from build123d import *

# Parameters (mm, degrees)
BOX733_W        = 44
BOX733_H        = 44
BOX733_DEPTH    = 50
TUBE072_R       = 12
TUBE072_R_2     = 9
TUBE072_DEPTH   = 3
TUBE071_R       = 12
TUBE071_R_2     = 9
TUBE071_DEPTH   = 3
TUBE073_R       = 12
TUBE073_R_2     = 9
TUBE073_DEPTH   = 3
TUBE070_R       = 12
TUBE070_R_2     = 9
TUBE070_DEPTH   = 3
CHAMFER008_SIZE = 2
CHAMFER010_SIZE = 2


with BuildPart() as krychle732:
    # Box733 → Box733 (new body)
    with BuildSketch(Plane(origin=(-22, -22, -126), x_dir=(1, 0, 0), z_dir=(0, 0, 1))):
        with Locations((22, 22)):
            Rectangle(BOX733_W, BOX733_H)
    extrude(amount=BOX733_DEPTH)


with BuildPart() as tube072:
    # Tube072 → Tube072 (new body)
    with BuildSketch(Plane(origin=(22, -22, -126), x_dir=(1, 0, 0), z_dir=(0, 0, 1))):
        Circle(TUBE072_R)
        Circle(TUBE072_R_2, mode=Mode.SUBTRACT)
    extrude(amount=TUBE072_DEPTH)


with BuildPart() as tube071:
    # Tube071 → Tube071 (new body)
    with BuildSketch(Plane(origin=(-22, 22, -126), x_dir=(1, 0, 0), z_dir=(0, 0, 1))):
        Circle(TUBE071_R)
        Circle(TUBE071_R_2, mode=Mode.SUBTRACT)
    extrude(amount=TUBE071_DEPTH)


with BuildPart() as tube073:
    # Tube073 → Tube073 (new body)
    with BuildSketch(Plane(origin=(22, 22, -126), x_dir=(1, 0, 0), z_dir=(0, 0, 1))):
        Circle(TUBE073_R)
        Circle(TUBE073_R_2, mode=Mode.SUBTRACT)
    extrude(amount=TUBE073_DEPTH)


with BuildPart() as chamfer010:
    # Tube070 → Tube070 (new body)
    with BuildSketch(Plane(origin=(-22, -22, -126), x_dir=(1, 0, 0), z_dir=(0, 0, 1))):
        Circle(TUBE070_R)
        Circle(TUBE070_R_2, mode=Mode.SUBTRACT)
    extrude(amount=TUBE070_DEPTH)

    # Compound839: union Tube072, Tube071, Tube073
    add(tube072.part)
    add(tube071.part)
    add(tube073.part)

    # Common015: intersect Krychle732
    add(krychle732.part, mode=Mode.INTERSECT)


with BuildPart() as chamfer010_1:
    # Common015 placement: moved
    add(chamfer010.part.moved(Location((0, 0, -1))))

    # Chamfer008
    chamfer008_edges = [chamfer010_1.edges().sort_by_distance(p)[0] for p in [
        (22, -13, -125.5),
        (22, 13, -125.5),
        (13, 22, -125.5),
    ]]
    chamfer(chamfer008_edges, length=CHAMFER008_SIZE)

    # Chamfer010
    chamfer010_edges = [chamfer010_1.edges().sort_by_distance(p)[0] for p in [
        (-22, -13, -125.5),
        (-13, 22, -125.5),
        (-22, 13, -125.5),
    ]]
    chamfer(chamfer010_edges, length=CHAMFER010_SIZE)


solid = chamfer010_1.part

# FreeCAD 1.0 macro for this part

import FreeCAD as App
import Part
import Sketcher


def edges_at(feature, points):
    """Names of the edges that pass closest to the given points."""
    edges = feature.Shape.Edges
    near = lambda p: min(range(len(edges)), key=lambda i: edges[i].distToShape(Part.Vertex(*p))[0])
    return sorted({f"Edge{near(p) + 1}" for p in points})

doc = App.newDocument("Part")
body = doc.addObject("PartDesign::Body", "Body")

# Sketch on XY plane
sketch1 = body.newObject("Sketcher::SketchObject", "Sketch")
sketch1.AttachmentSupport = (doc.getObject("XY_Plane"), [""])
sketch1.MapMode = "FlatFace"
sketch1.AttachmentOffset = App.Placement(App.Vector(0, 0, -126), App.Rotation())
sketch1.addGeometry([
    Part.LineSegment(App.Vector(-22, 22, 0), App.Vector(-22, -22, 0)),
    Part.LineSegment(App.Vector(-22, -22, 0), App.Vector(22, -22, 0)),
    Part.LineSegment(App.Vector(22, -22, 0), App.Vector(22, 22, 0)),
    Part.LineSegment(App.Vector(22, 22, 0), App.Vector(-22, 22, 0)),
], False)
sketch1.addConstraint([
    Sketcher.Constraint("Coincident", 0, 2, 1, 1),
    Sketcher.Constraint("Coincident", 1, 2, 2, 1),
    Sketcher.Constraint("Coincident", 2, 2, 3, 1),
    Sketcher.Constraint("Coincident", 3, 2, 0, 1),
    Sketcher.Constraint("Vertical", 0),
    Sketcher.Constraint("Horizontal", 1),
    Sketcher.Constraint("Vertical", 2),
    Sketcher.Constraint("Horizontal", 3),
    Sketcher.Constraint("Symmetric", 0, 2, 2, 2, -1, 1),
    Sketcher.Constraint("Equal", 3, 0),
    Sketcher.Constraint("DistanceX", 1, 1, 1, 2, 44.0),
])
pad1 = body.newObject("PartDesign::Pad", "Pad")
pad1.Profile = sketch1
pad1.Length = 50
body2 = doc.addObject("PartDesign::Body", "Body001")

# Sketch on XY plane
sketch2 = body2.newObject("Sketcher::SketchObject", "Sketch001")
sketch2.AttachmentSupport = (doc.getObject("XY_Plane001"), [""])
sketch2.MapMode = "FlatFace"
sketch2.AttachmentOffset = App.Placement(App.Vector(0, 0, -126), App.Rotation())
sketch2.addGeometry([
    Part.Circle(App.Vector(22, -22, 0), App.Vector(0, 0, 1), 12),
    Part.Circle(App.Vector(22, -22, 0), App.Vector(0, 0, 1), 9),
], False)
sketch2.addConstraint([
    Sketcher.Constraint("Coincident", 1, 3, 0, 3),
    Sketcher.Constraint("Diameter", 0, 24.0),
    Sketcher.Constraint("Diameter", 1, 18.0),
    Sketcher.Constraint("DistanceX", -1, 1, 0, 3, 22.0),
    Sketcher.Constraint("DistanceY", 0, 3, -1, 1, 22.0),
])
pad2 = body2.newObject("PartDesign::Pad", "Pad001")
pad2.Profile = sketch2
pad2.Length = 3
body3 = doc.addObject("PartDesign::Body", "Body002")

# Sketch on XY plane
sketch3 = body3.newObject("Sketcher::SketchObject", "Sketch002")
sketch3.AttachmentSupport = (doc.getObject("XY_Plane002"), [""])
sketch3.MapMode = "FlatFace"
sketch3.AttachmentOffset = App.Placement(App.Vector(0, 0, -126), App.Rotation())
sketch3.addGeometry([
    Part.Circle(App.Vector(-22, 22, 0), App.Vector(0, 0, 1), 12),
    Part.Circle(App.Vector(-22, 22, 0), App.Vector(0, 0, 1), 9),
], False)
sketch3.addConstraint([
    Sketcher.Constraint("Coincident", 1, 3, 0, 3),
    Sketcher.Constraint("Diameter", 0, 24.0),
    Sketcher.Constraint("Diameter", 1, 18.0),
    Sketcher.Constraint("DistanceX", 0, 3, -1, 1, 22.0),
    Sketcher.Constraint("DistanceY", -1, 1, 0, 3, 22.0),
])
pad3 = body3.newObject("PartDesign::Pad", "Pad002")
pad3.Profile = sketch3
pad3.Length = 3
body4 = doc.addObject("PartDesign::Body", "Body003")

# Sketch on XY plane
sketch4 = body4.newObject("Sketcher::SketchObject", "Sketch003")
sketch4.AttachmentSupport = (doc.getObject("XY_Plane003"), [""])
sketch4.MapMode = "FlatFace"
sketch4.AttachmentOffset = App.Placement(App.Vector(0, 0, -126), App.Rotation())
sketch4.addGeometry([
    Part.Circle(App.Vector(22, 22, 0), App.Vector(0, 0, 1), 12),
    Part.Circle(App.Vector(22, 22, 0), App.Vector(0, 0, 1), 9),
], False)
sketch4.addConstraint([
    Sketcher.Constraint("Coincident", 1, 3, 0, 3),
    Sketcher.Constraint("Diameter", 0, 24.0),
    Sketcher.Constraint("Diameter", 1, 18.0),
    Sketcher.Constraint("DistanceX", -1, 1, 0, 3, 22.0),
    Sketcher.Constraint("DistanceY", -1, 1, 0, 3, 22.0),
])
pad4 = body4.newObject("PartDesign::Pad", "Pad003")
pad4.Profile = sketch4
pad4.Length = 3
body5 = doc.addObject("PartDesign::Body", "Body004")
body5.AllowCompound = True

# Sketch on XY plane
sketch5 = body5.newObject("Sketcher::SketchObject", "Sketch004")
sketch5.AttachmentSupport = (doc.getObject("XY_Plane004"), [""])
sketch5.MapMode = "FlatFace"
sketch5.AttachmentOffset = App.Placement(App.Vector(0, 0, -126), App.Rotation())
sketch5.addGeometry([
    Part.Circle(App.Vector(-22, -22, 0), App.Vector(0, 0, 1), 12),
    Part.Circle(App.Vector(-22, -22, 0), App.Vector(0, 0, 1), 9),
], False)
sketch5.addConstraint([
    Sketcher.Constraint("Coincident", 1, 3, 0, 3),
    Sketcher.Constraint("Diameter", 0, 24.0),
    Sketcher.Constraint("Diameter", 1, 18.0),
    Sketcher.Constraint("DistanceX", 0, 3, -1, 1, 22.0),
    Sketcher.Constraint("DistanceY", 0, 3, -1, 1, 22.0),
])
pad5 = body5.newObject("PartDesign::Pad", "Pad004")
pad5.Profile = sketch5
pad5.Length = 3
doc.recompute()

boolean = body5.newObject("PartDesign::Boolean", "Boolean")
boolean.Type = "Fuse"
boolean.addObjects([body2])
doc.recompute()

boolean2 = body5.newObject("PartDesign::Boolean", "Boolean001")
boolean2.Type = "Fuse"
boolean2.addObjects([body3])
doc.recompute()

boolean3 = body5.newObject("PartDesign::Boolean", "Boolean002")
boolean3.Type = "Fuse"
boolean3.addObjects([body4])
doc.recompute()

boolean4 = body5.newObject("PartDesign::Boolean", "Boolean003")
boolean4.Type = "Common"
boolean4.addObjects([body])
body6 = doc.addObject("PartDesign::Body", "Body005")
body6.AllowCompound = True
doc.recompute()

body5.Placement = App.Placement(App.Vector(0, 0, -1), App.Rotation(App.Vector(0, 0, 1), 0))
boolean5 = body6.newObject("PartDesign::Boolean", "Boolean004")
boolean5.Type = "Fuse"
boolean5.addObjects([body5])
doc.recompute()

chamfer = body6.newObject("PartDesign::Chamfer", "Chamfer")
chamfer.Base = (boolean5, edges_at(boolean5, [(22, -13, -125.5), (22, 13, -125.5), (13, 22, -125.5)]))
chamfer.Size = 2
doc.recompute()

chamfer2 = body6.newObject("PartDesign::Chamfer", "Chamfer001")
chamfer2.Base = (chamfer, edges_at(chamfer, [(-22, -13, -125.5), (-13, 22, -125.5), (-22, 13, -125.5)]))
chamfer2.Size = 2

doc.recompute()
